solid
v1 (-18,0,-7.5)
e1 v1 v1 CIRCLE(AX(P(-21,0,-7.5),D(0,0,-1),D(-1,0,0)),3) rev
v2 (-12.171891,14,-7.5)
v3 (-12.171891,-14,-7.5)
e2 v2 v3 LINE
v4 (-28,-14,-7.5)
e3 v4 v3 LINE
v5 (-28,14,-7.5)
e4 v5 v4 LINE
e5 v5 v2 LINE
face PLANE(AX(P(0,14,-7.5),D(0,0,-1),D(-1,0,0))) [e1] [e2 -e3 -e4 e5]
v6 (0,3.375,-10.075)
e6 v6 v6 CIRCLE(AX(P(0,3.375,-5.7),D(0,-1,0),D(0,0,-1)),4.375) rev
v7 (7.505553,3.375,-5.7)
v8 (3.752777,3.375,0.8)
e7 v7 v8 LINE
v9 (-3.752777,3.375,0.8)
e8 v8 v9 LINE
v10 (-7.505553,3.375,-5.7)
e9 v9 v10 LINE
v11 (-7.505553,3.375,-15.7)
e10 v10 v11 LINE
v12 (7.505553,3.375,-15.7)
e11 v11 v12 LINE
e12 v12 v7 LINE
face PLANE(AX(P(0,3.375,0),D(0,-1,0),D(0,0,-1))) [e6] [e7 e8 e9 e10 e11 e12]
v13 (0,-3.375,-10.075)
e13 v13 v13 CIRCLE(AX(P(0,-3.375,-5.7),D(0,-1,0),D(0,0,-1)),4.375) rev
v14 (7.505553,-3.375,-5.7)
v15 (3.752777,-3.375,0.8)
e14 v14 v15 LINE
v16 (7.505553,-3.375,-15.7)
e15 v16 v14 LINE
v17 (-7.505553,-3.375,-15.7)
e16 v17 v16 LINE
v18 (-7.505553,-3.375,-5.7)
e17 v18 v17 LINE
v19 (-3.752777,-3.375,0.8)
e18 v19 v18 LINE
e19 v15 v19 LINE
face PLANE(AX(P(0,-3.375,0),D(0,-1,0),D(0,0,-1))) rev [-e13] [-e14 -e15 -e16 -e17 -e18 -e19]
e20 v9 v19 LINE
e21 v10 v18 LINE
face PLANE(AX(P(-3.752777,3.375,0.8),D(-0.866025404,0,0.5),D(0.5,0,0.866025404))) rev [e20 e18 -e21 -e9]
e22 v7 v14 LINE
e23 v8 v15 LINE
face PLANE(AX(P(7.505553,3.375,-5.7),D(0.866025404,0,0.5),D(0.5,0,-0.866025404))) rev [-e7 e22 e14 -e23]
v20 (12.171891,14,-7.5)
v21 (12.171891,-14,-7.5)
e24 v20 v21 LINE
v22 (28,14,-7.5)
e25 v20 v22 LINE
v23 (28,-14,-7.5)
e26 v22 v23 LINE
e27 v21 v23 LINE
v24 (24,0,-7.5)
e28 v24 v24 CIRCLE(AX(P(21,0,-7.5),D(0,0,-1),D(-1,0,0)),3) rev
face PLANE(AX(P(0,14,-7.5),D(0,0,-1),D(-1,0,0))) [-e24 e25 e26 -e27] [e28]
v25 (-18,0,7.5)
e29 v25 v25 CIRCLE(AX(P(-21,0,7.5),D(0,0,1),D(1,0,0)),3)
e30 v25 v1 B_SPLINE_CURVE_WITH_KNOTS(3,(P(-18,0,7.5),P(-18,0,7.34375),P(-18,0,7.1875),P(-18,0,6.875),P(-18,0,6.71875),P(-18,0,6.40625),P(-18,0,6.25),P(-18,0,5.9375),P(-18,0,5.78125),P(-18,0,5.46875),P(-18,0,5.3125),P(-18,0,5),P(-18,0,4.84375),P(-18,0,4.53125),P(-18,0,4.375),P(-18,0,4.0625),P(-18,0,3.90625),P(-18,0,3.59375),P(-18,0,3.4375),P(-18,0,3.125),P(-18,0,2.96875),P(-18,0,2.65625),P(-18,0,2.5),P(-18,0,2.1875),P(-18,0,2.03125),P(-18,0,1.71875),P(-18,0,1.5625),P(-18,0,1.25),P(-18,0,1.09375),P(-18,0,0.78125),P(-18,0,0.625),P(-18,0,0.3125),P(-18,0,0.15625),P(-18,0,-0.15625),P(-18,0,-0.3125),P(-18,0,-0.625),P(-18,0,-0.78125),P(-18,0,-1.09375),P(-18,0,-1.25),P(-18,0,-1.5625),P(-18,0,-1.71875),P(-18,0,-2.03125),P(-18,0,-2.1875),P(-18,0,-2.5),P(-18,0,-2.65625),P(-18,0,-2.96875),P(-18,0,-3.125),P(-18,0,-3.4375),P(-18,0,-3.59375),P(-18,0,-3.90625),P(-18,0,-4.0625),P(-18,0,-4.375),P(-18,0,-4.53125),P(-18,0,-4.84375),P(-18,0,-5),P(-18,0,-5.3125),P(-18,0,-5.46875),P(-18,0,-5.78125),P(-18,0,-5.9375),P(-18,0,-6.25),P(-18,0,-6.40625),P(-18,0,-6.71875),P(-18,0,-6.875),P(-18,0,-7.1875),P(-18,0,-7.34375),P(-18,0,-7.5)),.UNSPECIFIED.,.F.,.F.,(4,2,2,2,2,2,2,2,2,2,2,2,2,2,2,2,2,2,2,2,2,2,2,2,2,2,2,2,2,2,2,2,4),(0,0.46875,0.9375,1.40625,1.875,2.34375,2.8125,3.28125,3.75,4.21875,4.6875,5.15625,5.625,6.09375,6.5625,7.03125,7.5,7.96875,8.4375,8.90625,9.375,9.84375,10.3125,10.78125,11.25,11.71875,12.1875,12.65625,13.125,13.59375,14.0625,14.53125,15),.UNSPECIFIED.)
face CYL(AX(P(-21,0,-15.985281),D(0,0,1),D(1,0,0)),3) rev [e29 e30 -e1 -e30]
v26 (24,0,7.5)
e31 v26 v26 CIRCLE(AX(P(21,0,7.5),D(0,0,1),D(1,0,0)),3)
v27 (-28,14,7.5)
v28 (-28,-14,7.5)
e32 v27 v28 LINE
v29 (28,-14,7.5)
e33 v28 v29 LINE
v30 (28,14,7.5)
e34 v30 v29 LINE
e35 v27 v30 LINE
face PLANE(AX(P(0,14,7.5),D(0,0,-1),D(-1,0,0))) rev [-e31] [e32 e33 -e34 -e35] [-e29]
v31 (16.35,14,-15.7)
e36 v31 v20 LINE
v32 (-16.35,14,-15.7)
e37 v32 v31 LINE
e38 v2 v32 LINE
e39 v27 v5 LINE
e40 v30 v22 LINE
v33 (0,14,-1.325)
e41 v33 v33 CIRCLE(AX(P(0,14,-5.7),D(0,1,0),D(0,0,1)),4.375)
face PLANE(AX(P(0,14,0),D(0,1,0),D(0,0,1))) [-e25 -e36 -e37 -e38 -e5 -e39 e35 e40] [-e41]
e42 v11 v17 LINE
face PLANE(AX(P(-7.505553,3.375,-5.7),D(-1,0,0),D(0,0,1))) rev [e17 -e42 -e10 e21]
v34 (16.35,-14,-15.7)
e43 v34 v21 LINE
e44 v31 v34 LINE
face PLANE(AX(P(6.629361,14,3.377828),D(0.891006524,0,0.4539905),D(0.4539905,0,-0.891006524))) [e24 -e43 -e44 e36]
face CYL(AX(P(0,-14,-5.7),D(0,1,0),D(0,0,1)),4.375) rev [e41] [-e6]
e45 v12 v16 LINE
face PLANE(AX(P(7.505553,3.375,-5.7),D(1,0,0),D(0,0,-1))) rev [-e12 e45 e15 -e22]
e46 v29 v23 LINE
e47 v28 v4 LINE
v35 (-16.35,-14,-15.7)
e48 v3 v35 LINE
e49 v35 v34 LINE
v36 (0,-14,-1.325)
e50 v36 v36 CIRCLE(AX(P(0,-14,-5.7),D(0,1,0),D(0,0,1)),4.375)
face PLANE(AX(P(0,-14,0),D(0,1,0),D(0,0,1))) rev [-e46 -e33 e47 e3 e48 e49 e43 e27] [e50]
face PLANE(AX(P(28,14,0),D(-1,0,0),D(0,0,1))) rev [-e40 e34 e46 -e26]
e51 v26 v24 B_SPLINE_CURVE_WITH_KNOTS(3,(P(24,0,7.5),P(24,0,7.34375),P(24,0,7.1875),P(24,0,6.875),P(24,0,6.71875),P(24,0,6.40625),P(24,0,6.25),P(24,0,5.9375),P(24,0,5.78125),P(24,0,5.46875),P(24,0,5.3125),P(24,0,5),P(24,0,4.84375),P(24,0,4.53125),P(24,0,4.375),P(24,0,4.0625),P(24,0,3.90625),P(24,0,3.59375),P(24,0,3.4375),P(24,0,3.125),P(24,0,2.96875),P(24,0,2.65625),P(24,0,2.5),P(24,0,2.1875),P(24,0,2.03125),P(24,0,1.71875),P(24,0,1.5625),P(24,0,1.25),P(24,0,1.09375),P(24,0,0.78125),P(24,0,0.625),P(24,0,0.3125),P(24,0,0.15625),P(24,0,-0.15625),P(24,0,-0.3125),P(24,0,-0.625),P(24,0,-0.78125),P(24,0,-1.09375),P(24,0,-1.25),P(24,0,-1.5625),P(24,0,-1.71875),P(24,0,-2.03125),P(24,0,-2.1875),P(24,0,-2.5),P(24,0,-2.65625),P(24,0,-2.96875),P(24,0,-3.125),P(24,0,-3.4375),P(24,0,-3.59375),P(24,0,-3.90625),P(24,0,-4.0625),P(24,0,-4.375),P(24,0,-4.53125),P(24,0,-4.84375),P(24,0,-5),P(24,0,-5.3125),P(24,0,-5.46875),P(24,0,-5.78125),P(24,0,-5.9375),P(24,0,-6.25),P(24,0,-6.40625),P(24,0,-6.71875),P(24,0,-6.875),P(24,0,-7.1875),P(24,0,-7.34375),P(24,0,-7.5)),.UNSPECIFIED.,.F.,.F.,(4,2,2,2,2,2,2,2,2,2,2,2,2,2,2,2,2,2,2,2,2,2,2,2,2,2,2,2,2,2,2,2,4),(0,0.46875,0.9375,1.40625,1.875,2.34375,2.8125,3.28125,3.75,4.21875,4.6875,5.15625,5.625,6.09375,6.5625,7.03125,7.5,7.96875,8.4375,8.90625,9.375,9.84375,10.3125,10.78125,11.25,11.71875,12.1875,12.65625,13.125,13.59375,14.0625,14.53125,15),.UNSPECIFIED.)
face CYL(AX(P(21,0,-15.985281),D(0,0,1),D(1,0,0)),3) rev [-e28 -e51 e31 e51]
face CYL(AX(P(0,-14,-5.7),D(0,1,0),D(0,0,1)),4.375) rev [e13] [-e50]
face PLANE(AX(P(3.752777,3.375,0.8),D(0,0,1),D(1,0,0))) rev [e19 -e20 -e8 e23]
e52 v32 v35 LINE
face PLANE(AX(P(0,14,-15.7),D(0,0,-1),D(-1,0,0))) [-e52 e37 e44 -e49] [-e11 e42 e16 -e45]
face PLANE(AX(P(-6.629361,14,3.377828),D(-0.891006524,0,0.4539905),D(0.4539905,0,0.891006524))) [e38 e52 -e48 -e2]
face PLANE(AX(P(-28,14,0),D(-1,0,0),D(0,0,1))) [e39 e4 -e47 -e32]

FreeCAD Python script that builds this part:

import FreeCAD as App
import Part
import Sketcher
from FreeCAD import Vector
Q = App.Units.Quantity

doc = App.newDocument("Part")
params = doc.addObject("Spreadsheet::Sheet", "Params")
for row, (alias, value) in enumerate([
    ("sketch1_width", "56 mm"),
    ("sketch1_height", "15 mm"),
    ("sketch1_width2", "32.7 mm"),
    ("pad1_length", "28 mm"),
    ("sketch2_diameter", "8.75 mm"),
    ("pocket1_length", "28 mm"),
    ("sketch3_diameter", "6 mm"),
    ("pocket2_length", "15 mm"),
    ("sketch4_height", "10 mm"),
    ("pocket3_length", "6.75 mm"),
], start=1):
    params.set(f"A{row}", alias)
    params.set(f"B{row}", "=" + value)
    params.setAlias(f"B{row}", alias)

body = doc.addObject("PartDesign::Body", "Body")

# Sketch on XZ plane
sketch1 = body.newObject("Sketcher::SketchObject", "Sketch")
sketch1.AttachmentSupport = (doc.getObject("XZ_Plane"), [""])
sketch1.MapMode = "FlatFace"
sketch1.addGeometry([
    Part.LineSegment(Vector(-16.35, -15.7, 0), Vector(-12.171891, -7.5, 0)),  # 0
    Part.LineSegment(Vector(-12.171891, -7.5, 0), Vector(-28, -7.5, 0)),  # 1
    Part.LineSegment(Vector(-28, -7.5, 0), Vector(-28, 7.5, 0)),  # 2
    Part.LineSegment(Vector(-28, 7.5, 0), Vector(28, 7.5, 0)),  # 3
    Part.LineSegment(Vector(28, 7.5, 0), Vector(28, -7.5, 0)),  # 4
    Part.LineSegment(Vector(28, -7.5, 0), Vector(12.171891, -7.5, 0)),  # 5
    Part.LineSegment(Vector(12.171891, -7.5, 0), Vector(16.35, -15.7, 0)),  # 6
    Part.LineSegment(Vector(16.35, -15.7, 0), Vector(-16.35, -15.7, 0)),  # 7
], False)
sketch1.addConstraint([
    Sketcher.Constraint("Coincident", 0, 2, 1, 1),
    Sketcher.Constraint("Coincident", 1, 2, 2, 1),
    Sketcher.Constraint("Coincident", 2, 2, 3, 1),
    Sketcher.Constraint("Coincident", 3, 2, 4, 1),
    Sketcher.Constraint("Coincident", 4, 2, 5, 1),
    Sketcher.Constraint("Coincident", 5, 2, 6, 1),
    Sketcher.Constraint("Coincident", 6, 2, 7, 1),
    Sketcher.Constraint("Coincident", 7, 2, 0, 1),
    Sketcher.Constraint("Horizontal", 1),
    Sketcher.Constraint("Vertical", 2),
    Sketcher.Constraint("Horizontal", 3),
    Sketcher.Constraint("Vertical", 4),
    Sketcher.Constraint("Horizontal", 5),
    Sketcher.Constraint("Horizontal", 7),
    Sketcher.Constraint("Symmetric", 1, 2, 3, 2, -1, 1),
    Sketcher.Constraint("Symmetric", 0, 2, 5, 2, -2),
    Sketcher.Constraint("Equal", 0, 6),
    Sketcher.Constraint("DistanceX", 3, 1, 3, 2, Q("56 mm")),
    Sketcher.Constraint("DistanceY", 2, 1, 2, 2, Q("15 mm")),
    Sketcher.Constraint("Angle", 0, Q("63 deg")),
    Sketcher.Constraint("DistanceX", 7, 2, 7, 1, Q("32.7 mm")),
    Sketcher.Constraint("DistanceY", 6, 2, -1, 1, Q("15.7 mm")),
])
sketch1.setExpression("Constraints[17]", "Params.sketch1_width")
sketch1.setExpression("Constraints[18]", "Params.sketch1_height")
sketch1.setExpression("Constraints[20]", "Params.sketch1_width2")
pad1 = body.newObject("PartDesign::Pad", "Pad")
pad1.Profile = sketch1
pad1.setExpression("Length", "Params.pad1_length")
pad1.Midplane = True

# Sketch on XZ plane
sketch2 = body.newObject("Sketcher::SketchObject", "Sketch001")
sketch2.AttachmentSupport = (doc.getObject("XZ_Plane"), [""])
sketch2.MapMode = "FlatFace"
sketch2.AttachmentOffset = App.Placement(Vector(0, 0, -14), App.Rotation())
sketch2.addGeometry(Part.Circle(Vector(0, -5.7, 0), Vector(0, 0, 1), 4.375), False)
sketch2.addConstraint([
    Sketcher.Constraint("PointOnObject", 0, 3, -2),
    Sketcher.Constraint("Diameter", 0, Q("8.75 mm")),
    Sketcher.Constraint("DistanceY", 0, 3, -1, 1, Q("5.7 mm")),
])
sketch2.setExpression("Constraints[1]", "Params.sketch2_diameter")
pocket1 = body.newObject("PartDesign::Pocket", "Pocket")
pocket1.Profile = sketch2
pocket1.setExpression("Length", "Params.pocket1_length")
pocket1.Reversed = True

# Sketch on XY plane
sketch3 = body.newObject("Sketcher::SketchObject", "Sketch002")
sketch3.AttachmentSupport = (doc.getObject("XY_Plane"), [""])
sketch3.MapMode = "FlatFace"
sketch3.AttachmentOffset = App.Placement(Vector(0, 0, 7.5), App.Rotation())
sketch3.addGeometry([
    Part.Circle(Vector(-21, 0, 0), Vector(0, 0, 1), 3),
    Part.Circle(Vector(21, 0, 0), Vector(0, 0, 1), 3),
], False)
sketch3.addConstraint([
    Sketcher.Constraint("Equal", 0, 1),
    Sketcher.Constraint("Symmetric", 0, 3, 1, 3, -1, 1),
    Sketcher.Constraint("PointOnObject", 0, 3, -1),
    Sketcher.Constraint("Diameter", 0, Q("6 mm")),
    Sketcher.Constraint("DistanceX", 0, 3, -1, 1, Q("21 mm")),
])
sketch3.setExpression("Constraints[3]", "Params.sketch3_diameter")
pocket2 = body.newObject("PartDesign::Pocket", "Pocket001")
pocket2.Profile = sketch3
pocket2.setExpression("Length", "Params.pocket2_length")

# Sketch on XZ plane
sketch4 = body.newObject("Sketcher::SketchObject", "Sketch003")
sketch4.AttachmentSupport = (doc.getObject("XZ_Plane"), [""])
sketch4.MapMode = "FlatFace"
sketch4.addGeometry([
    Part.LineSegment(Vector(7.505553, -15.7, 0), Vector(7.505553, -5.7, 0)),  # 0
    Part.LineSegment(Vector(7.505553, -5.7, 0), Vector(3.752777, 0.8, 0)),  # 1
    Part.LineSegment(Vector(3.752777, 0.8, 0), Vector(-3.752777, 0.8, 0)),  # 2
    Part.LineSegment(Vector(-3.752777, 0.8, 0), Vector(-7.505553, -5.7, 0)),  # 3
    Part.LineSegment(Vector(-7.505553, -5.7, 0), Vector(-7.505553, -15.7, 0)),  # 4
    Part.LineSegment(Vector(-7.505553, -15.7, 0), Vector(7.505553, -15.7, 0)),  # 5
], False)
sketch4.addConstraint([
    Sketcher.Constraint("Coincident", 0, 2, 1, 1),
    Sketcher.Constraint("Coincident", 1, 2, 2, 1),
    Sketcher.Constraint("Coincident", 2, 2, 3, 1),
    Sketcher.Constraint("Coincident", 3, 2, 4, 1),
    Sketcher.Constraint("Coincident", 4, 2, 5, 1),
    Sketcher.Constraint("Coincident", 5, 2, 0, 1),
    Sketcher.Constraint("Vertical", 0),
    Sketcher.Constraint("Horizontal", 2),
    Sketcher.Constraint("Vertical", 4),
    Sketcher.Constraint("Horizontal", 5),
    Sketcher.Constraint("Symmetric", 0, 2, 3, 2, -2),
    Sketcher.Constraint("Equal", 1, 3),
    Sketcher.Constraint("DistanceY", 0, 1, 0, 2, Q("10 mm")),
    Sketcher.Constraint("Angle", 1, Q("120 deg")),
    Sketcher.Constraint("DistanceY", 0, 2, -1, 1, Q("5.7 mm")),
    Sketcher.Constraint("DistanceY", -1, 1, 1, 2, Q("0.8 mm")),
    Sketcher.Constraint("DistanceX", 2, 2, 2, 1, Q("7.505554 mm")),
])
sketch4.setExpression("Constraints[12]", "Params.sketch4_height")
pocket3 = body.newObject("PartDesign::Pocket", "Pocket002")
pocket3.Profile = sketch4
pocket3.setExpression("Length", "Params.pocket3_length")
pocket3.Midplane = True

doc.recompute()
